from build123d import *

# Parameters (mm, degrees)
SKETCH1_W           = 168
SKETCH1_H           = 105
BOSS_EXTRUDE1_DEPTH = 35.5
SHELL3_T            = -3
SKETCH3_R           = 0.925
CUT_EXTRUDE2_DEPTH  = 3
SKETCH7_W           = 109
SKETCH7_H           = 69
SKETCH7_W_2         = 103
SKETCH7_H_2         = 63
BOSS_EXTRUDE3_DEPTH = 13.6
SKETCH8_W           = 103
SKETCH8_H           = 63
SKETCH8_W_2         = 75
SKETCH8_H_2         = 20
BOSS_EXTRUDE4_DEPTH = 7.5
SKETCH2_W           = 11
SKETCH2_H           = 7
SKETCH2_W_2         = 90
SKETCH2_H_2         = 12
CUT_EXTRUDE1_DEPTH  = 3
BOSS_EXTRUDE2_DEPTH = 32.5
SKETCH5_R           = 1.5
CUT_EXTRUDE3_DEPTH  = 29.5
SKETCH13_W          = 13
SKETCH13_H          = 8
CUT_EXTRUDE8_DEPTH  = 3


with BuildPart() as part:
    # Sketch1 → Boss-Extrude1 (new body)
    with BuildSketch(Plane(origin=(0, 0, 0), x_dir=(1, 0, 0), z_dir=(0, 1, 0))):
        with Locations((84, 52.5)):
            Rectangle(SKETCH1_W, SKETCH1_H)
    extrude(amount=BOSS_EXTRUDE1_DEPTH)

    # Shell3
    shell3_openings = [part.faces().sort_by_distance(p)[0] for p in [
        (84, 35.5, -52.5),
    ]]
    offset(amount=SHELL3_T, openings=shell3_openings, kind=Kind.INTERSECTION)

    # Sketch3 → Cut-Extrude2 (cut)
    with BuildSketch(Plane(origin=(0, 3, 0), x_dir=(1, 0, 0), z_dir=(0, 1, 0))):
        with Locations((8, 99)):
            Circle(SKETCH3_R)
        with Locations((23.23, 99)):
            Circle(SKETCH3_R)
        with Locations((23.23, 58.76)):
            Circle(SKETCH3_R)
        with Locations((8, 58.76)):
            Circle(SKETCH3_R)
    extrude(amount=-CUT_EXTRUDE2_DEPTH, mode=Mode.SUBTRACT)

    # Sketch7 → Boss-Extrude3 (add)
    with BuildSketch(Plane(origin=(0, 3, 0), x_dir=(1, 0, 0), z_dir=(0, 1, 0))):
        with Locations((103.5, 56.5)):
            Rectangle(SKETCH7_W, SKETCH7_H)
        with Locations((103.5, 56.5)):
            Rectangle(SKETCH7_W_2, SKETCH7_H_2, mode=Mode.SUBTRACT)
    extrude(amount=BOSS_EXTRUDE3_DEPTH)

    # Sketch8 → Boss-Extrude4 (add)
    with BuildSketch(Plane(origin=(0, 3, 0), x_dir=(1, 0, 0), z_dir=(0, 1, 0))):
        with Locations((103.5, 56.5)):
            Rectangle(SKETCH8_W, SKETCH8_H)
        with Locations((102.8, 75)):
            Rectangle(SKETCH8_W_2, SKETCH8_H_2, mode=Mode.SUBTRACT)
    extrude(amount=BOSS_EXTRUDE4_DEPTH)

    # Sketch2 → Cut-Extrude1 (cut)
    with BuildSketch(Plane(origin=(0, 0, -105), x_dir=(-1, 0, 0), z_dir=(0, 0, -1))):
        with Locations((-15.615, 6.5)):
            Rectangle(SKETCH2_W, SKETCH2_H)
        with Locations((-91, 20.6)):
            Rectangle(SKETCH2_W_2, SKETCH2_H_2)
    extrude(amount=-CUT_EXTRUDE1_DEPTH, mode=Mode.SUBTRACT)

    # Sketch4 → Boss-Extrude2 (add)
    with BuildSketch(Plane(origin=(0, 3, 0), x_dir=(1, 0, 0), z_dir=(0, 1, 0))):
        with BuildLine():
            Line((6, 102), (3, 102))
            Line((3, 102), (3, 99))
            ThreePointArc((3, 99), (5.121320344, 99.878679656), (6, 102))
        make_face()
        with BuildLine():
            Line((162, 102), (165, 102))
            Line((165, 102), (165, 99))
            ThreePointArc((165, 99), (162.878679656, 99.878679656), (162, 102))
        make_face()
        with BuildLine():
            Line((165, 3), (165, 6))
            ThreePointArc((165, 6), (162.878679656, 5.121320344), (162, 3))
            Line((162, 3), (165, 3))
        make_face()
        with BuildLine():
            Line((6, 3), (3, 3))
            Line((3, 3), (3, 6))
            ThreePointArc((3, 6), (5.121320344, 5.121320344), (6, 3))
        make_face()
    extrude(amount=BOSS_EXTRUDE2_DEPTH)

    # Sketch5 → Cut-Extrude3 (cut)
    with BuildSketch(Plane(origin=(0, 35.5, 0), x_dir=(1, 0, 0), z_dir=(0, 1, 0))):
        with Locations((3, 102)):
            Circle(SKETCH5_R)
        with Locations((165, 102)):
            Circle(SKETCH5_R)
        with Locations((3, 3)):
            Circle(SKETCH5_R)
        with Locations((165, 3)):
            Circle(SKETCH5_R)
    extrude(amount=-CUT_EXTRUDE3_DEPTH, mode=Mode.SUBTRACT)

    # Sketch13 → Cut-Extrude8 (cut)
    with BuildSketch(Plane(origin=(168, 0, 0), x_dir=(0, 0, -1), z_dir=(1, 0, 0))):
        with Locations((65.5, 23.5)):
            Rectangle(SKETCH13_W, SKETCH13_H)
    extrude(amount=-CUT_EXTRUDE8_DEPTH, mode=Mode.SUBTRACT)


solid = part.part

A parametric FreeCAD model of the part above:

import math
import FreeCAD as App
import Part
import Sketcher

V = App.Vector
Q = App.Units.Quantity


def faces_at(feature, points):
    """Names of the faces that lie closest to the given points."""
    faces = feature.Shape.Faces
    near = lambda p: min(range(len(faces)), key=lambda i: faces[i].distToShape(Part.Vertex(*p))[0])
    return sorted({f"Face{near(p) + 1}" for p in points})


def add_polygon(sketch, points):
    """Adds a closed chain of lines whose ends are joined by coincident constraints."""
    first, n = sketch.GeometryCount, len(points)
    for a, b in zip(points, points[1:] + points[:1]):
        sketch.addGeometry(Part.LineSegment(App.Vector(*a, 0), App.Vector(*b, 0)), False)
    for i in range(n):
        sketch.addConstraint(Sketcher.Constraint("Coincident", first + i, 2, first + (i + 1) % n, 1))

doc = App.newDocument("Part")
body = doc.addObject("PartDesign::Body", "Body")

# Sketch on XZ plane
sketch1 = body.newObject("Sketcher::SketchObject", "Sketch")
sketch1.AttachmentSupport = (doc.getObject("XZ_Plane"), [""])
sketch1.MapMode = "FlatFace"
add_polygon(sketch1, [(0, -105), (0, 0), (168, 0), (168, -105)])  # lines 0-3
sketch1.addConstraint(Sketcher.Constraint("Vertical", 0))
sketch1.addConstraint(Sketcher.Constraint("Horizontal", 1))
sketch1.addConstraint(Sketcher.Constraint("Vertical", 2))
sketch1.addConstraint(Sketcher.Constraint("Horizontal", 3))
sketch1.addConstraint(Sketcher.Constraint("Coincident", 0, 2, -1, 1))
sketch1.addConstraint(Sketcher.Constraint("DistanceX", 1, 1, 1, 2, Q("168 mm")))
sketch1.addConstraint(Sketcher.Constraint("DistanceY", 0, 1, 0, 2, Q("105 mm")))
pad1 = body.newObject("PartDesign::Pad", "Pad")
pad1.Profile = sketch1
pad1.Length = 35.5
pad1.Reversed = True
doc.recompute()

thickness = body.newObject("PartDesign::Thickness", "Thickness")
thickness.Base = (pad1, faces_at(pad1, [(84, 35.5, -52.5)]))
thickness.Value = 3
thickness.Reversed = True
thickness.Join = "Intersection"

# Sketch on XZ plane
sketch2 = body.newObject("Sketcher::SketchObject", "Sketch001")
sketch2.AttachmentSupport = (doc.getObject("XZ_Plane"), [""])
sketch2.MapMode = "FlatFace"
sketch2.AttachmentOffset = App.Placement(V(0, 0, -3), App.Rotation())
sketch2.addGeometry(Part.Circle(V(8, -99, 0), V(0, 0, 1), 0.9), False)
sketch2.addGeometry(Part.Circle(V(23.2, -99, 0), V(0, 0, 1), 0.9), False)
sketch2.addGeometry(Part.Circle(V(23.2, -58.8, 0), V(0, 0, 1), 0.9), False)
sketch2.addGeometry(Part.Circle(V(8, -58.8, 0), V(0, 0, 1), 0.9), False)
sketch2.addConstraint(Sketcher.Constraint("Equal", 0, 1))
sketch2.addConstraint(Sketcher.Constraint("Equal", 1, 2))
sketch2.addConstraint(Sketcher.Constraint("Equal", 2, 3))
sketch2.addConstraint(Sketcher.Constraint("Horizontal", 0, 3, 1, 3))
sketch2.addConstraint(Sketcher.Constraint("Horizontal", 2, 3, 3, 3))
sketch2.addConstraint(Sketcher.Constraint("Vertical", 1, 3, 2, 3))
sketch2.addConstraint(Sketcher.Constraint("Vertical", 0, 3, 3, 3))
sketch2.addConstraint(Sketcher.Constraint("Diameter", 0, Q("1.85 mm")))
sketch2.addConstraint(Sketcher.Constraint("DistanceX", -1, 1, 0, 3, Q("8 mm")))
sketch2.addConstraint(Sketcher.Constraint("DistanceY", 0, 3, -1, 1, Q("99 mm")))
sketch2.addConstraint(Sketcher.Constraint("DistanceX", -1, 1, 1, 3, Q("23.23 mm")))
sketch2.addConstraint(Sketcher.Constraint("DistanceY", 2, 3, -1, 1, Q("58.76 mm")))
pocket1 = body.newObject("PartDesign::Pocket", "Pocket")
pocket1.Profile = sketch2
pocket1.Length = 3
pocket1.Reversed = True

# Sketch on XZ plane
sketch3 = body.newObject("Sketcher::SketchObject", "Sketch002")
sketch3.AttachmentSupport = (doc.getObject("XZ_Plane"), [""])
sketch3.MapMode = "FlatFace"
sketch3.AttachmentOffset = App.Placement(V(0, 0, -3), App.Rotation())
add_polygon(sketch3, [(49, -91), (49, -22), (158, -22), (158, -91)])  # lines 0-3
add_polygon(sketch3, [(155, -25), (52, -25), (52, -88), (155, -88)])  # lines 4-7
sketch3.addConstraint(Sketcher.Constraint("Vertical", 0))
sketch3.addConstraint(Sketcher.Constraint("Horizontal", 1))
sketch3.addConstraint(Sketcher.Constraint("Vertical", 2))
sketch3.addConstraint(Sketcher.Constraint("Horizontal", 3))
sketch3.addConstraint(Sketcher.Constraint("Horizontal", 4))
sketch3.addConstraint(Sketcher.Constraint("Vertical", 5))
sketch3.addConstraint(Sketcher.Constraint("Horizontal", 6))
sketch3.addConstraint(Sketcher.Constraint("Vertical", 7))
sketch3.addConstraint(Sketcher.Constraint("DistanceX", 1, 1, 1, 2, Q("109 mm")))
sketch3.addConstraint(Sketcher.Constraint("DistanceX", 4, 2, 4, 1, Q("103 mm")))
sketch3.addConstraint(Sketcher.Constraint("DistanceY", 0, 1, 0, 2, Q("69 mm")))
sketch3.addConstraint(Sketcher.Constraint("DistanceY", 5, 2, 5, 1, Q("63 mm")))
sketch3.addConstraint(Sketcher.Constraint("DistanceX", -1, 1, 0, 2, Q("49 mm")))
sketch3.addConstraint(Sketcher.Constraint("DistanceY", 0, 2, -1, 1, Q("22 mm")))
sketch3.addConstraint(Sketcher.Constraint("DistanceX", -1, 1, 4, 2, Q("52 mm")))
sketch3.addConstraint(Sketcher.Constraint("DistanceY", 4, 2, -1, 1, Q("25 mm")))
pad2 = body.newObject("PartDesign::Pad", "Pad001")
pad2.Profile = sketch3
pad2.Length = 13.6
pad2.Reversed = True

# Sketch on XZ plane
sketch4 = body.newObject("Sketcher::SketchObject", "Sketch003")
sketch4.AttachmentSupport = (doc.getObject("XZ_Plane"), [""])
sketch4.MapMode = "FlatFace"
sketch4.AttachmentOffset = App.Placement(V(0, 0, -3), App.Rotation())
add_polygon(sketch4, [(52, -88), (52, -25), (155, -25), (155, -88)])  # lines 0-3
add_polygon(sketch4, [(140, -65), (65, -65), (65, -85), (140, -85)])  # lines 4-7
sketch4.addConstraint(Sketcher.Constraint("Vertical", 0))
sketch4.addConstraint(Sketcher.Constraint("Horizontal", 1))
sketch4.addConstraint(Sketcher.Constraint("Vertical", 2))
sketch4.addConstraint(Sketcher.Constraint("Horizontal", 3))
sketch4.addConstraint(Sketcher.Constraint("Horizontal", 4))
sketch4.addConstraint(Sketcher.Constraint("Vertical", 5))
sketch4.addConstraint(Sketcher.Constraint("Horizontal", 6))
sketch4.addConstraint(Sketcher.Constraint("Vertical", 7))
sketch4.addConstraint(Sketcher.Constraint("DistanceX", 1, 1, 1, 2, Q("103 mm")))
sketch4.addConstraint(Sketcher.Constraint("DistanceX", 4, 2, 4, 1, Q("75 mm")))
sketch4.addConstraint(Sketcher.Constraint("DistanceY", 0, 1, 0, 2, Q("63 mm")))
sketch4.addConstraint(Sketcher.Constraint("DistanceY", 5, 2, 5, 1, Q("20 mm")))
sketch4.addConstraint(Sketcher.Constraint("DistanceX", -1, 1, 0, 2, Q("52 mm")))
sketch4.addConstraint(Sketcher.Constraint("DistanceY", 0, 2, -1, 1, Q("25 mm")))
sketch4.addConstraint(Sketcher.Constraint("DistanceY", 4, 2, -1, 1, Q("65 mm")))
sketch4.addConstraint(Sketcher.Constraint("DistanceX", -1, 1, 4, 2, Q("65.3 mm")))
pad3 = body.newObject("PartDesign::Pad", "Pad002")
pad3.Profile = sketch4
pad3.Length = 7.5
pad3.Reversed = True

# Sketch on XY plane
sketch5 = body.newObject("Sketcher::SketchObject", "Sketch004")
sketch5.AttachmentSupport = (doc.getObject("XY_Plane"), [""])
sketch5.MapMode = "FlatFace"
sketch5.AttachmentOffset = App.Placement(V(0, 0, -105), App.Rotation())
add_polygon(sketch5, [(21, 10), (21, 3), (10, 3), (10, 10)])  # lines 0-3
add_polygon(sketch5, [(136, 27), (136, 15), (46, 15), (46, 27)])  # lines 4-7
sketch5.addConstraint(Sketcher.Constraint("Vertical", 0))
sketch5.addConstraint(Sketcher.Constraint("Horizontal", 1))
sketch5.addConstraint(Sketcher.Constraint("Vertical", 2))
sketch5.addConstraint(Sketcher.Constraint("Horizontal", 3))
sketch5.addConstraint(Sketcher.Constraint("Vertical", 4))
sketch5.addConstraint(Sketcher.Constraint("Horizontal", 5))
sketch5.addConstraint(Sketcher.Constraint("Vertical", 6))
sketch5.addConstraint(Sketcher.Constraint("Horizontal", 7))
sketch5.addConstraint(Sketcher.Constraint("DistanceX", 1, 2, 1, 1, Q("11 mm")))
sketch5.addConstraint(Sketcher.Constraint("DistanceX", 5, 2, 5, 1, Q("90 mm")))
sketch5.addConstraint(Sketcher.Constraint("DistanceY", 0, 2, 0, 1, Q("7 mm")))
sketch5.addConstraint(Sketcher.Constraint("DistanceY", 4, 2, 4, 1, Q("12 mm")))
sketch5.addConstraint(Sketcher.Constraint("DistanceY", -1, 1, 0, 2, Q("3 mm")))
sketch5.addConstraint(Sketcher.Constraint("DistanceX", -1, 1, 4, 2, Q("136 mm")))
sketch5.addConstraint(Sketcher.Constraint("DistanceY", -1, 1, 4, 2, Q("14.6 mm")))
sketch5.addConstraint(Sketcher.Constraint("DistanceX", -1, 1, 0, 2, Q("21.115 mm")))
pocket2 = body.newObject("PartDesign::Pocket", "Pocket001")
pocket2.Profile = sketch5
pocket2.Length = 3
pocket2.Reversed = True

# Sketch on XZ plane
sketch6 = body.newObject("Sketcher::SketchObject", "Sketch005")
sketch6.AttachmentSupport = (doc.getObject("XZ_Plane"), [""])
sketch6.MapMode = "FlatFace"
sketch6.AttachmentOffset = App.Placement(V(0, 0, -3), App.Rotation())
sketch6.addGeometry(Part.LineSegment(V(6, -102, 0), V(3, -102, 0)), False)
sketch6.addGeometry(Part.LineSegment(V(3, -102, 0), V(3, -99, 0)), False)
sketch6.addGeometry(Part.ArcOfCircle(Part.Circle(V(3, -102, 0), V(0, 0, 1), 3), math.radians(0), math.radians(90)), False)
sketch6.addGeometry(Part.LineSegment(V(165, -102, 0), V(162, -102, 0)), False)
sketch6.addGeometry(Part.ArcOfCircle(Part.Circle(V(165, -102, 0), V(0, 0, 1), 3), math.radians(90), math.radians(180)), False)
sketch6.addGeometry(Part.LineSegment(V(165, -99, 0), V(165, -102, 0)), False)
sketch6.addGeometry(Part.LineSegment(V(165, -3, 0), V(165, -6, 0)), False)
sketch6.addGeometry(Part.ArcOfCircle(Part.Circle(V(165, -3, 0), V(0, 0, 1), 3), math.radians(180), math.radians(270)), False)
sketch6.addGeometry(Part.LineSegment(V(162, -3, 0), V(165, -3, 0)), False)
sketch6.addGeometry(Part.LineSegment(V(3, -3, 0), V(6, -3, 0)), False)
sketch6.addGeometry(Part.ArcOfCircle(Part.Circle(V(3, -3, 0), V(0, 0, 1), 3), math.radians(-90), math.radians(0)), False)
sketch6.addGeometry(Part.LineSegment(V(3, -6, 0), V(3, -3, 0)), False)
sketch6.addConstraint(Sketcher.Constraint("Coincident", 0, 2, 1, 1))
sketch6.addConstraint(Sketcher.Constraint("Coincident", 1, 2, 2, 2))
sketch6.addConstraint(Sketcher.Constraint("Coincident", 2, 1, 0, 1))
sketch6.addConstraint(Sketcher.Constraint("Coincident", 3, 2, 4, 2))
sketch6.addConstraint(Sketcher.Constraint("Coincident", 4, 1, 5, 1))
sketch6.addConstraint(Sketcher.Constraint("Coincident", 5, 2, 3, 1))
sketch6.addConstraint(Sketcher.Constraint("Coincident", 6, 2, 7, 2))
sketch6.addConstraint(Sketcher.Constraint("Coincident", 7, 1, 8, 1))
sketch6.addConstraint(Sketcher.Constraint("Coincident", 8, 2, 6, 1))
sketch6.addConstraint(Sketcher.Constraint("Coincident", 9, 2, 10, 2))
sketch6.addConstraint(Sketcher.Constraint("Coincident", 10, 1, 11, 1))
sketch6.addConstraint(Sketcher.Constraint("Coincident", 11, 2, 9, 1))
sketch6.addConstraint(Sketcher.Constraint("Horizontal", 0))
sketch6.addConstraint(Sketcher.Constraint("Vertical", 1))
sketch6.addConstraint(Sketcher.Constraint("Horizontal", 3))
sketch6.addConstraint(Sketcher.Constraint("Vertical", 5))
sketch6.addConstraint(Sketcher.Constraint("Vertical", 6))
sketch6.addConstraint(Sketcher.Constraint("Horizontal", 8))
sketch6.addConstraint(Sketcher.Constraint("Horizontal", 9))
sketch6.addConstraint(Sketcher.Constraint("Vertical", 11))
sketch6.addConstraint(Sketcher.Constraint("Coincident", 0, 2, 2, 3))
sketch6.addConstraint(Sketcher.Constraint("Coincident", 5, 2, 4, 3))
sketch6.addConstraint(Sketcher.Constraint("Coincident", 8, 2, 7, 3))
sketch6.addConstraint(Sketcher.Constraint("Coincident", 11, 2, 10, 3))
sketch6.addConstraint(Sketcher.Constraint("Equal", 2, 4))
sketch6.addConstraint(Sketcher.Constraint("Equal", 4, 7))
sketch6.addConstraint(Sketcher.Constraint("Equal", 7, 10))
sketch6.addConstraint(Sketcher.Constraint("Horizontal", 2, 3, 4, 3))
sketch6.addConstraint(Sketcher.Constraint("Horizontal", 7, 3, 10, 3))
sketch6.addConstraint(Sketcher.Constraint("Vertical", 4, 3, 7, 3))
sketch6.addConstraint(Sketcher.Constraint("Vertical", 2, 3, 10, 3))
sketch6.addConstraint(Sketcher.Constraint("Radius", 2, Q("3 mm")))
sketch6.addConstraint(Sketcher.Constraint("DistanceX", -1, 1, 2, 3, Q("3 mm")))
sketch6.addConstraint(Sketcher.Constraint("DistanceY", 2, 3, -1, 1, Q("102 mm")))
sketch6.addConstraint(Sketcher.Constraint("DistanceX", -1, 1, 4, 3, Q("165 mm")))
sketch6.addConstraint(Sketcher.Constraint("DistanceY", 7, 3, -1, 1, Q("3 mm")))
pad4 = body.newObject("PartDesign::Pad", "Pad003")
pad4.Profile = sketch6
pad4.Length = 32.5
pad4.Reversed = True

# Sketch on XZ plane
sketch7 = body.newObject("Sketcher::SketchObject", "Sketch006")
sketch7.AttachmentSupport = (doc.getObject("XZ_Plane"), [""])
sketch7.MapMode = "FlatFace"
sketch7.AttachmentOffset = App.Placement(V(0, 0, -35.5), App.Rotation())
sketch7.addGeometry(Part.Circle(V(3, -102, 0), V(0, 0, 1), 1.5), False)
sketch7.addGeometry(Part.Circle(V(165, -102, 0), V(0, 0, 1), 1.5), False)
sketch7.addGeometry(Part.Circle(V(3, -3, 0), V(0, 0, 1), 1.5), False)
sketch7.addGeometry(Part.Circle(V(165, -3, 0), V(0, 0, 1), 1.5), False)
sketch7.addConstraint(Sketcher.Constraint("Equal", 0, 1))
sketch7.addConstraint(Sketcher.Constraint("Equal", 1, 2))
sketch7.addConstraint(Sketcher.Constraint("Equal", 2, 3))
sketch7.addConstraint(Sketcher.Constraint("Horizontal", 0, 3, 1, 3))
sketch7.addConstraint(Sketcher.Constraint("Horizontal", 2, 3, 3, 3))
sketch7.addConstraint(Sketcher.Constraint("Vertical", 0, 3, 2, 3))
sketch7.addConstraint(Sketcher.Constraint("Vertical", 1, 3, 3, 3))
sketch7.addConstraint(Sketcher.Constraint("Diameter", 0, Q("3 mm")))
sketch7.addConstraint(Sketcher.Constraint("DistanceX", -1, 1, 0, 3, Q("3 mm")))
sketch7.addConstraint(Sketcher.Constraint("DistanceY", 0, 3, -1, 1, Q("102 mm")))
sketch7.addConstraint(Sketcher.Constraint("DistanceX", -1, 1, 1, 3, Q("165 mm")))
sketch7.addConstraint(Sketcher.Constraint("DistanceY", 2, 3, -1, 1, Q("3 mm")))
pocket3 = body.newObject("PartDesign::Pocket", "Pocket002")
pocket3.Profile = sketch7
pocket3.Length = 29.5
pocket3.Reversed = True

# Sketch on YZ plane
sketch8 = body.newObject("Sketcher::SketchObject", "Sketch007")
sketch8.AttachmentSupport = (doc.getObject("YZ_Plane"), [""])
sketch8.MapMode = "FlatFace"
sketch8.AttachmentOffset = App.Placement(V(0, 0, 168), App.Rotation())
add_polygon(sketch8, [(28, -59), (20, -59), (20, -72), (28, -72)])  # lines 0-3
sketch8.addConstraint(Sketcher.Constraint("Horizontal", 0))
sketch8.addConstraint(Sketcher.Constraint("Vertical", 1))
sketch8.addConstraint(Sketcher.Constraint("Horizontal", 2))
sketch8.addConstraint(Sketcher.Constraint("Vertical", 3))
sketch8.addConstraint(Sketcher.Constraint("DistanceX", 0, 2, 0, 1, Q("8 mm")))
sketch8.addConstraint(Sketcher.Constraint("DistanceY", 1, 2, 1, 1, Q("13 mm")))
sketch8.addConstraint(Sketcher.Constraint("DistanceY", 0, 2, -1, 1, Q("59 mm")))
sketch8.addConstraint(Sketcher.Constraint("DistanceX", -1, 1, 0, 2, Q("19.5 mm")))
pocket4 = body.newObject("PartDesign::Pocket", "Pocket003")
pocket4.Profile = sketch8
pocket4.Length = 3

doc.recompute()
